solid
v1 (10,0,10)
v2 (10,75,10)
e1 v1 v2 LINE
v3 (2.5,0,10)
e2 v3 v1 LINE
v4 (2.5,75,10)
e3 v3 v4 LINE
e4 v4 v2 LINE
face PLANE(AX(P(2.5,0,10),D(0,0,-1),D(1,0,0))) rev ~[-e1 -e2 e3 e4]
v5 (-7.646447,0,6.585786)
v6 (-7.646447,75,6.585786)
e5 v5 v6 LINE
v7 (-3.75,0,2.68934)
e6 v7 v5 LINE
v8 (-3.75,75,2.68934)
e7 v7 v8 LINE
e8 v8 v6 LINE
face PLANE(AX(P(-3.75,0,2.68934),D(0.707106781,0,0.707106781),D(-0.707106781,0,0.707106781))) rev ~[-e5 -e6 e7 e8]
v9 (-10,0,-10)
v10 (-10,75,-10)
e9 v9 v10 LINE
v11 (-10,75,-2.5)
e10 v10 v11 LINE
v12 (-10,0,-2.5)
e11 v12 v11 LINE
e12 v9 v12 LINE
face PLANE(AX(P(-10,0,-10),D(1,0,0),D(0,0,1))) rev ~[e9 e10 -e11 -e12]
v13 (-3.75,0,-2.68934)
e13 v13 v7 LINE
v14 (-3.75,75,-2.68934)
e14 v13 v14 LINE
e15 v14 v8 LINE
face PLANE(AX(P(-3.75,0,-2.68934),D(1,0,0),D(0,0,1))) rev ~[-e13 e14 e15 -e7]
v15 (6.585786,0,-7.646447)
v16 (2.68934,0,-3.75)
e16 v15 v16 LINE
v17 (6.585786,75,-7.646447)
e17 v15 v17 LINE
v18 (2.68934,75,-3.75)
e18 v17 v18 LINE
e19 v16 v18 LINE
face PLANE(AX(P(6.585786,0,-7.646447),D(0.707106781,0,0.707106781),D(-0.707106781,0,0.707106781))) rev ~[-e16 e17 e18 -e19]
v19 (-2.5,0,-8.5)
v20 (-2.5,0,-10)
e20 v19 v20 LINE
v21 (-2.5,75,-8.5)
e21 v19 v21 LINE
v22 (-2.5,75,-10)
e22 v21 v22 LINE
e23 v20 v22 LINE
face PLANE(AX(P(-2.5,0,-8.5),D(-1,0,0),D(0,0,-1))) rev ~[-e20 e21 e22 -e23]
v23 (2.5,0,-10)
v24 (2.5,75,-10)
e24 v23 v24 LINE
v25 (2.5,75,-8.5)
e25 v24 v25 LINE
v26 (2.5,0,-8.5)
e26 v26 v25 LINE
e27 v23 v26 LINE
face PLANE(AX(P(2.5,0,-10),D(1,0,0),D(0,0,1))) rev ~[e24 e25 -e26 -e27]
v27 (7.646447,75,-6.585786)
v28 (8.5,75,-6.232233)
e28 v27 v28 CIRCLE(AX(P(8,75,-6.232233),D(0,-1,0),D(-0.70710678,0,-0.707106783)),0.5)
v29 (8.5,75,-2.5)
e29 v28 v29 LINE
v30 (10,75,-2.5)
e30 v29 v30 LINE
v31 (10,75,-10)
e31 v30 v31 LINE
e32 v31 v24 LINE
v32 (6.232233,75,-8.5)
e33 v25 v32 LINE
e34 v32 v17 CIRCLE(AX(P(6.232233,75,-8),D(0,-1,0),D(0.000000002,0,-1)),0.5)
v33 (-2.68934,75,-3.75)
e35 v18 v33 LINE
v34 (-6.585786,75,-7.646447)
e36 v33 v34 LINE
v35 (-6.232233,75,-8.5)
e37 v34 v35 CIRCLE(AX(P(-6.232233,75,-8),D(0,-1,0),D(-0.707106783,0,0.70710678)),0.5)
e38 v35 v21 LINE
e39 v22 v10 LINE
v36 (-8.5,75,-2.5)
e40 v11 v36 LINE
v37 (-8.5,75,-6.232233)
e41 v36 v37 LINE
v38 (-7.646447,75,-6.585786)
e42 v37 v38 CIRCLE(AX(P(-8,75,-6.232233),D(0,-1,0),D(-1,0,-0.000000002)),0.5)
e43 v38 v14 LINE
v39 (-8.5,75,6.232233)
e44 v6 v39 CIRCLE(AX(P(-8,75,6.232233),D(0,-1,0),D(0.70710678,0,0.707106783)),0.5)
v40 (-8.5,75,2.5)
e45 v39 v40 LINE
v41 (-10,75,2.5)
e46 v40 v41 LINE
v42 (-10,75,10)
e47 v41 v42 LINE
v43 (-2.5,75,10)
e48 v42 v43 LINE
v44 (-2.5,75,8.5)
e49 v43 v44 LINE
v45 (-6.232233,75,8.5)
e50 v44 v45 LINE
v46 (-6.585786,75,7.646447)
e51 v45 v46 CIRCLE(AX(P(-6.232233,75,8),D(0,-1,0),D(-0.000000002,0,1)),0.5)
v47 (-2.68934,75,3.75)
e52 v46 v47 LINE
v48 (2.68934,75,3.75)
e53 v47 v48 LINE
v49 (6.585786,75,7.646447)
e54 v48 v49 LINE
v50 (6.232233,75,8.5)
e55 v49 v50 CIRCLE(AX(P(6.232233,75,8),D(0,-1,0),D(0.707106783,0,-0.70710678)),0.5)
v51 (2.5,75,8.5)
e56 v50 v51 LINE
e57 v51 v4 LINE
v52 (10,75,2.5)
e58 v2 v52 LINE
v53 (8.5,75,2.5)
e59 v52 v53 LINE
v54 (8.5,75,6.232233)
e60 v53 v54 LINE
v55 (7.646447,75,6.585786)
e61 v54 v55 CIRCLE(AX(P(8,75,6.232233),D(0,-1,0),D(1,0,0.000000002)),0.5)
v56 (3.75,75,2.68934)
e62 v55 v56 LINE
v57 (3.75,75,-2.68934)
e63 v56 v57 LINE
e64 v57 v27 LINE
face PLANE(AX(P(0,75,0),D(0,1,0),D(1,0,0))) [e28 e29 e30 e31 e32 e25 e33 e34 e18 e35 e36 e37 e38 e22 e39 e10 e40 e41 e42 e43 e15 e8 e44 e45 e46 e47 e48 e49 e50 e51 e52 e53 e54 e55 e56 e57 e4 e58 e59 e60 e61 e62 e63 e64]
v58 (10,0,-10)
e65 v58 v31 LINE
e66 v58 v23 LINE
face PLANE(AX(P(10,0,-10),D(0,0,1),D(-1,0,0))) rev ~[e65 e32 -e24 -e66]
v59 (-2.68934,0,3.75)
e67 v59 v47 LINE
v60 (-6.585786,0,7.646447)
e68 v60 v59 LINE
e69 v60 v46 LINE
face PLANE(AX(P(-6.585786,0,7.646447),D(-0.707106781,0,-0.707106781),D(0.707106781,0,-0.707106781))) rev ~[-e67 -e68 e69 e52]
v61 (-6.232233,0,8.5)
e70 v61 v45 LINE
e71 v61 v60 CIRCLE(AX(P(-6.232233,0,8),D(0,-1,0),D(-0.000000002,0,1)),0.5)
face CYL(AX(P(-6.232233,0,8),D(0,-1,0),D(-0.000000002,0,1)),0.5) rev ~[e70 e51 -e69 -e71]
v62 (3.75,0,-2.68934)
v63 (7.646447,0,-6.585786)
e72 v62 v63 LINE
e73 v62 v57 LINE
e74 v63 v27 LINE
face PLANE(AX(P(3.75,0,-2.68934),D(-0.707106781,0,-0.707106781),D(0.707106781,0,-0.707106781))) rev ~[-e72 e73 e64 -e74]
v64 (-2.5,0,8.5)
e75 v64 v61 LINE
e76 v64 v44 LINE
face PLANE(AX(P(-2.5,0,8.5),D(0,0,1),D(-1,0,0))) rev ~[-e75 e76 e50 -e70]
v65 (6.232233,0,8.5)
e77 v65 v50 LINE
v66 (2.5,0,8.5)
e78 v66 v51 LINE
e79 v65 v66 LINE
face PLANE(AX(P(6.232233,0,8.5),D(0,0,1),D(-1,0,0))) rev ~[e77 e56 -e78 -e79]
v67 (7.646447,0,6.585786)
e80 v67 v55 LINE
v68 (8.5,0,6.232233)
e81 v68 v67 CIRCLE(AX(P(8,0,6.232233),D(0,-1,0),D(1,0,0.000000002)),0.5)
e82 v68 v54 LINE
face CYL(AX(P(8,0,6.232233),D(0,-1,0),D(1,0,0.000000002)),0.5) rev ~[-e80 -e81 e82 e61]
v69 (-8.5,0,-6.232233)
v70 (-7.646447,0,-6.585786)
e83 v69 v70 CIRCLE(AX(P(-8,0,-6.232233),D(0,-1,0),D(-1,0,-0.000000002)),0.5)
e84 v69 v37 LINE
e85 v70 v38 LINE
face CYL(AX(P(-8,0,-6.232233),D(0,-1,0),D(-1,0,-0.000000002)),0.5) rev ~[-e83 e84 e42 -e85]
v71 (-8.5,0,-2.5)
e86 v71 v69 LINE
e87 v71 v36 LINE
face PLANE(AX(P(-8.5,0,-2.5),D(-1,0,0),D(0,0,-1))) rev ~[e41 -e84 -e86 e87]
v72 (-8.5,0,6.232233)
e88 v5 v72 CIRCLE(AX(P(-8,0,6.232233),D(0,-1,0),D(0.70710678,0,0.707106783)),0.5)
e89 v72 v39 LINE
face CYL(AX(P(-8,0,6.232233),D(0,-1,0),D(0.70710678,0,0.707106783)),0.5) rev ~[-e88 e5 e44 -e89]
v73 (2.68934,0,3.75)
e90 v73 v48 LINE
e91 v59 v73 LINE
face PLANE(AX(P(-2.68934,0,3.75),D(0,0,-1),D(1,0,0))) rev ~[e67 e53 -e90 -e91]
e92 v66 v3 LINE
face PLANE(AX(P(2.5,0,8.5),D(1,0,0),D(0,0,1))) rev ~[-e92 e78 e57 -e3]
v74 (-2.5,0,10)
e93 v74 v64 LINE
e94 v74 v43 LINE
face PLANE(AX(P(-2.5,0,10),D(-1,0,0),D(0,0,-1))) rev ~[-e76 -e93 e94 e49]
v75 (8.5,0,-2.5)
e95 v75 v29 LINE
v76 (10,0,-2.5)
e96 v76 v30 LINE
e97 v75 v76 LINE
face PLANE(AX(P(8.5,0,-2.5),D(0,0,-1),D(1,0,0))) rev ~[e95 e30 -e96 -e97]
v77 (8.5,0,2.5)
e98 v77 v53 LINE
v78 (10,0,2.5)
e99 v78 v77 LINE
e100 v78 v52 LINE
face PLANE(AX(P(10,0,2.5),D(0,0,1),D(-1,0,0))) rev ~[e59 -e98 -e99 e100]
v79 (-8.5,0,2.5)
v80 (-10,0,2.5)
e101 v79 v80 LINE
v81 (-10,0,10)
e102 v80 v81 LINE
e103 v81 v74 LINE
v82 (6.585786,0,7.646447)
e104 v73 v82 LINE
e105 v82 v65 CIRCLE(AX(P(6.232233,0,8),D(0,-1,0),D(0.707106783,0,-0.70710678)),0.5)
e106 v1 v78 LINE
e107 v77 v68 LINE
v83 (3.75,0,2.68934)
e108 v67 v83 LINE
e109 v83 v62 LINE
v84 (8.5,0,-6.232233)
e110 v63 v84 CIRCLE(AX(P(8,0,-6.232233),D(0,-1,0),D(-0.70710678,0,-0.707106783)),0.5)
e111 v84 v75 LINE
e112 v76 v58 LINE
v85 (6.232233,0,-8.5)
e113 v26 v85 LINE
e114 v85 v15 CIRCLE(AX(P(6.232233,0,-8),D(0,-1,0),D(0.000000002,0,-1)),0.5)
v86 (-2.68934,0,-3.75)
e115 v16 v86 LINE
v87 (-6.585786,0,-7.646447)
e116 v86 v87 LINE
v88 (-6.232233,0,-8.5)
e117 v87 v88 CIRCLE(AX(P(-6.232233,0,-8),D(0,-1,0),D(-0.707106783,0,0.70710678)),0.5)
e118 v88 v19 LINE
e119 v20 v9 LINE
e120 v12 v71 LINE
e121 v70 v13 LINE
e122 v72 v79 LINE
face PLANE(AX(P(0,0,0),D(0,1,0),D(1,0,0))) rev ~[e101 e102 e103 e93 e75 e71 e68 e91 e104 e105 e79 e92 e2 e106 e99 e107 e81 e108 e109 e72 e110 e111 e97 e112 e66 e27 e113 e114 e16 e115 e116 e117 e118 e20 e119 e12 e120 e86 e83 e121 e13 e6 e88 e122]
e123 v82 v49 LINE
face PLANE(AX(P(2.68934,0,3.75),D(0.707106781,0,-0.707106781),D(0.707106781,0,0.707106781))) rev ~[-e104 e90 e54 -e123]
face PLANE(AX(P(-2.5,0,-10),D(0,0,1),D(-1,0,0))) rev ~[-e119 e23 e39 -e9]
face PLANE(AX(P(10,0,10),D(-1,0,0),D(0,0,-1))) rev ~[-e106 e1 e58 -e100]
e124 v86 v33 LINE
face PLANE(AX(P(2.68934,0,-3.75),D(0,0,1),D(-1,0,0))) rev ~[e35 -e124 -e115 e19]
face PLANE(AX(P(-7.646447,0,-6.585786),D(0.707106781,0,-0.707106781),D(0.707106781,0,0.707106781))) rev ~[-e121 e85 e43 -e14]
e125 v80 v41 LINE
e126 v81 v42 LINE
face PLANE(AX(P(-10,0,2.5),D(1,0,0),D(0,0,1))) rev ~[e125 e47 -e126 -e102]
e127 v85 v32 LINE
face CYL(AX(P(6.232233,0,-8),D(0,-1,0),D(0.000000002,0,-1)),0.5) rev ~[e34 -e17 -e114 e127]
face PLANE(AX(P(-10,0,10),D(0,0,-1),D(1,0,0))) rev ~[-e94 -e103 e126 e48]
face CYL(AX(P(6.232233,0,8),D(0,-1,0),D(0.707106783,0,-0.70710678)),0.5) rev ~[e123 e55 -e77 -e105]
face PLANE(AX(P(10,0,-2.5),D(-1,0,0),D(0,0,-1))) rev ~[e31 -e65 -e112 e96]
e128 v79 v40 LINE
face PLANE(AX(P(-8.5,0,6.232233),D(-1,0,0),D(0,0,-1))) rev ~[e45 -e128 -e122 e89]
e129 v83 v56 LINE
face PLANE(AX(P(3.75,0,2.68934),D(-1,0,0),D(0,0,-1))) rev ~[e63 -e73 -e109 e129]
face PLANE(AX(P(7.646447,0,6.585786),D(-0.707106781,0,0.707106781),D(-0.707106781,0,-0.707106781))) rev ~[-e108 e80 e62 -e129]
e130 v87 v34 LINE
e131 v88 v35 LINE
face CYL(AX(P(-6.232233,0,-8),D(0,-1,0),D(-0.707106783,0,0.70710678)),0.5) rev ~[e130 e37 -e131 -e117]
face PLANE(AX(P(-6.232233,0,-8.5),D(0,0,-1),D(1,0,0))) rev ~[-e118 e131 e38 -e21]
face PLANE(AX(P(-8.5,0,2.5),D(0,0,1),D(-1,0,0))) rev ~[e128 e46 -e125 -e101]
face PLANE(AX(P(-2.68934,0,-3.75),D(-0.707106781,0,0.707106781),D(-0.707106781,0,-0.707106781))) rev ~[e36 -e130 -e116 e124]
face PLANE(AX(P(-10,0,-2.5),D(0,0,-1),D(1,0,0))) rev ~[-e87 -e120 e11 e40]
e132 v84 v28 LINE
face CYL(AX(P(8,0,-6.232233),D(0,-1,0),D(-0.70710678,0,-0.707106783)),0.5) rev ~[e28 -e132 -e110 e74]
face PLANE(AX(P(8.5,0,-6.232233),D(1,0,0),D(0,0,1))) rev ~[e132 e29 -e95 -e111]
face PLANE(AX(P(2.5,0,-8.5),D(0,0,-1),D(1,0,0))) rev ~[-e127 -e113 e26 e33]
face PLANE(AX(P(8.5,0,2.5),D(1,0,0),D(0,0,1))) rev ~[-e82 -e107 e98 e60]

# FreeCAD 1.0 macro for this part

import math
import FreeCAD as App
import Part
import Sketcher
from FreeCAD import Vector
Q = App.Units.Quantity

doc = App.newDocument("Part")
body = doc.addObject("PartDesign::Body", "Body")

# Sketch on XZ plane
sketch1 = body.newObject("Sketcher::SketchObject", "Sketch")
sketch1.AttachmentSupport = (doc.getObject("XZ_Plane"), [""])
sketch1.MapMode = "FlatFace"
sketch1.addGeometry(Part.LineSegment(Vector(-10, 2.5, 0), Vector(-10, 10, 0)), False)
sketch1.addGeometry(Part.LineSegment(Vector(-10, 10, 0), Vector(-2.5, 10, 0)), False)
sketch1.addGeometry(Part.LineSegment(Vector(-2.5, 10, 0), Vector(-2.5, 8.5, 0)), False)
sketch1.addGeometry(Part.LineSegment(Vector(-2.5, 8.5, 0), Vector(-6.2, 8.5, 0)), False)
sketch1.addGeometry(Part.ArcOfCircle(Part.Circle(Vector(-6.2, 8, 0), Vector(0, 0, 1), 0.5), math.radians(90), math.radians(225)), False)
sketch1.addGeometry(Part.LineSegment(Vector(-6.6, 7.6, 0), Vector(-2.7, 3.8, 0)), False)
sketch1.addGeometry(Part.LineSegment(Vector(-2.7, 3.8, 0), Vector(2.7, 3.8, 0)), False)
sketch1.addGeometry(Part.LineSegment(Vector(2.7, 3.8, 0), Vector(6.6, 7.6, 0)), False)
sketch1.addGeometry(Part.ArcOfCircle(Part.Circle(Vector(6.2, 8, 0), Vector(0, 0, 1), 0.5), math.radians(-45), math.radians(90)), False)
sketch1.addGeometry(Part.LineSegment(Vector(6.2, 8.5, 0), Vector(2.5, 8.5, 0)), False)
sketch1.addGeometry(Part.LineSegment(Vector(2.5, 8.5, 0), Vector(2.5, 10, 0)), False)
sketch1.addGeometry(Part.LineSegment(Vector(2.5, 10, 0), Vector(10, 10, 0)), False)
sketch1.addGeometry(Part.LineSegment(Vector(10, 10, 0), Vector(10, 2.5, 0)), False)
sketch1.addGeometry(Part.LineSegment(Vector(10, 2.5, 0), Vector(8.5, 2.5, 0)), False)
sketch1.addGeometry(Part.LineSegment(Vector(8.5, 2.5, 0), Vector(8.5, 6.2, 0)), False)
sketch1.addGeometry(Part.ArcOfCircle(Part.Circle(Vector(8, 6.2, 0), Vector(0, 0, 1), 0.5), math.radians(0), math.radians(135)), False)
sketch1.addGeometry(Part.LineSegment(Vector(7.6, 6.6, 0), Vector(3.8, 2.7, 0)), False)
sketch1.addGeometry(Part.LineSegment(Vector(3.8, 2.7, 0), Vector(3.8, -2.7, 0)), False)
sketch1.addGeometry(Part.LineSegment(Vector(3.8, -2.7, 0), Vector(7.6, -6.6, 0)), False)
sketch1.addGeometry(Part.ArcOfCircle(Part.Circle(Vector(8, -6.2, 0), Vector(0, 0, 1), 0.5), math.radians(-135), math.radians(0)), False)
sketch1.addGeometry(Part.LineSegment(Vector(8.5, -6.2, 0), Vector(8.5, -2.5, 0)), False)
sketch1.addGeometry(Part.LineSegment(Vector(8.5, -2.5, 0), Vector(10, -2.5, 0)), False)
sketch1.addGeometry(Part.LineSegment(Vector(10, -2.5, 0), Vector(10, -10, 0)), False)
sketch1.addGeometry(Part.LineSegment(Vector(10, -10, 0), Vector(2.5, -10, 0)), False)
sketch1.addGeometry(Part.LineSegment(Vector(2.5, -10, 0), Vector(2.5, -8.5, 0)), False)
sketch1.addGeometry(Part.LineSegment(Vector(2.5, -8.5, 0), Vector(6.2, -8.5, 0)), False)
sketch1.addGeometry(Part.ArcOfCircle(Part.Circle(Vector(6.2, -8, 0), Vector(0, 0, 1), 0.5), math.radians(-90), math.radians(45)), False)
sketch1.addGeometry(Part.LineSegment(Vector(6.6, -7.6, 0), Vector(2.7, -3.8, 0)), False)
sketch1.addGeometry(Part.LineSegment(Vector(2.7, -3.8, 0), Vector(-2.7, -3.8, 0)), False)
sketch1.addGeometry(Part.LineSegment(Vector(-2.7, -3.8, 0), Vector(-6.6, -7.6, 0)), False)
sketch1.addGeometry(Part.ArcOfCircle(Part.Circle(Vector(-6.2, -8, 0), Vector(0, 0, 1), 0.5), math.radians(135), math.radians(270)), False)
sketch1.addGeometry(Part.LineSegment(Vector(-6.2, -8.5, 0), Vector(-2.5, -8.5, 0)), False)
sketch1.addGeometry(Part.LineSegment(Vector(-2.5, -8.5, 0), Vector(-2.5, -10, 0)), False)
sketch1.addGeometry(Part.LineSegment(Vector(-2.5, -10, 0), Vector(-10, -10, 0)), False)
sketch1.addGeometry(Part.LineSegment(Vector(-10, -10, 0), Vector(-10, -2.5, 0)), False)
sketch1.addGeometry(Part.LineSegment(Vector(-10, -2.5, 0), Vector(-8.5, -2.5, 0)), False)
sketch1.addGeometry(Part.LineSegment(Vector(-8.5, -2.5, 0), Vector(-8.5, -6.2, 0)), False)
sketch1.addGeometry(Part.ArcOfCircle(Part.Circle(Vector(-8, -6.2, 0), Vector(0, 0, 1), 0.5), math.radians(-180), math.radians(-45)), False)
sketch1.addGeometry(Part.LineSegment(Vector(-7.6, -6.6, 0), Vector(-3.8, -2.7, 0)), False)
sketch1.addGeometry(Part.LineSegment(Vector(-3.8, -2.7, 0), Vector(-3.8, 2.7, 0)), False)
sketch1.addGeometry(Part.LineSegment(Vector(-3.8, 2.7, 0), Vector(-7.6, 6.6, 0)), False)
sketch1.addGeometry(Part.ArcOfCircle(Part.Circle(Vector(-8, 6.2, 0), Vector(0, 0, 1), 0.5), math.radians(45), math.radians(180)), False)
sketch1.addGeometry(Part.LineSegment(Vector(-8.5, 6.2, 0), Vector(-8.5, 2.5, 0)), False)
sketch1.addGeometry(Part.LineSegment(Vector(-8.5, 2.5, 0), Vector(-10, 2.5, 0)), False)
sketch1.addConstraint(Sketcher.Constraint("Coincident", 0, 2, 1, 1))
sketch1.addConstraint(Sketcher.Constraint("Coincident", 1, 2, 2, 1))
sketch1.addConstraint(Sketcher.Constraint("Coincident", 2, 2, 3, 1))
sketch1.addConstraint(Sketcher.Constraint("Tangent", 3, 2, 4, 1))
sketch1.addConstraint(Sketcher.Constraint("Tangent", 4, 2, 5, 1))
sketch1.addConstraint(Sketcher.Constraint("Coincident", 5, 2, 6, 1))
sketch1.addConstraint(Sketcher.Constraint("Coincident", 6, 2, 7, 1))
sketch1.addConstraint(Sketcher.Constraint("Tangent", 7, 2, 8, 1))
sketch1.addConstraint(Sketcher.Constraint("Tangent", 8, 2, 9, 1))
sketch1.addConstraint(Sketcher.Constraint("Coincident", 9, 2, 10, 1))
sketch1.addConstraint(Sketcher.Constraint("Coincident", 10, 2, 11, 1))
sketch1.addConstraint(Sketcher.Constraint("Coincident", 11, 2, 12, 1))
sketch1.addConstraint(Sketcher.Constraint("Coincident", 12, 2, 13, 1))
sketch1.addConstraint(Sketcher.Constraint("Coincident", 13, 2, 14, 1))
sketch1.addConstraint(Sketcher.Constraint("Tangent", 14, 2, 15, 1))
sketch1.addConstraint(Sketcher.Constraint("Tangent", 15, 2, 16, 1))
sketch1.addConstraint(Sketcher.Constraint("Coincident", 16, 2, 17, 1))
sketch1.addConstraint(Sketcher.Constraint("Coincident", 17, 2, 18, 1))
sketch1.addConstraint(Sketcher.Constraint("Tangent", 18, 2, 19, 1))
sketch1.addConstraint(Sketcher.Constraint("Tangent", 19, 2, 20, 1))
sketch1.addConstraint(Sketcher.Constraint("Coincident", 20, 2, 21, 1))
sketch1.addConstraint(Sketcher.Constraint("Coincident", 21, 2, 22, 1))
sketch1.addConstraint(Sketcher.Constraint("Coincident", 22, 2, 23, 1))
sketch1.addConstraint(Sketcher.Constraint("Coincident", 23, 2, 24, 1))
sketch1.addConstraint(Sketcher.Constraint("Coincident", 24, 2, 25, 1))
sketch1.addConstraint(Sketcher.Constraint("Tangent", 25, 2, 26, 1))
sketch1.addConstraint(Sketcher.Constraint("Tangent", 26, 2, 27, 1))
sketch1.addConstraint(Sketcher.Constraint("Coincident", 27, 2, 28, 1))
sketch1.addConstraint(Sketcher.Constraint("Coincident", 28, 2, 29, 1))
sketch1.addConstraint(Sketcher.Constraint("Tangent", 29, 2, 30, 1))
sketch1.addConstraint(Sketcher.Constraint("Tangent", 30, 2, 31, 1))
sketch1.addConstraint(Sketcher.Constraint("Coincident", 31, 2, 32, 1))
sketch1.addConstraint(Sketcher.Constraint("Coincident", 32, 2, 33, 1))
sketch1.addConstraint(Sketcher.Constraint("Coincident", 33, 2, 34, 1))
sketch1.addConstraint(Sketcher.Constraint("Coincident", 34, 2, 35, 1))
sketch1.addConstraint(Sketcher.Constraint("Coincident", 35, 2, 36, 1))
sketch1.addConstraint(Sketcher.Constraint("Tangent", 36, 2, 37, 1))
sketch1.addConstraint(Sketcher.Constraint("Tangent", 37, 2, 38, 1))
sketch1.addConstraint(Sketcher.Constraint("Coincident", 38, 2, 39, 1))
sketch1.addConstraint(Sketcher.Constraint("Coincident", 39, 2, 40, 1))
sketch1.addConstraint(Sketcher.Constraint("Tangent", 40, 2, 41, 1))
sketch1.addConstraint(Sketcher.Constraint("Tangent", 41, 2, 42, 1))
sketch1.addConstraint(Sketcher.Constraint("Coincident", 42, 2, 43, 1))
sketch1.addConstraint(Sketcher.Constraint("Coincident", 43, 2, 0, 1))
sketch1.addConstraint(Sketcher.Constraint("Vertical", 0))
sketch1.addConstraint(Sketcher.Constraint("Horizontal", 1))
sketch1.addConstraint(Sketcher.Constraint("Vertical", 2))
sketch1.addConstraint(Sketcher.Constraint("Horizontal", 3))
sketch1.addConstraint(Sketcher.Constraint("Horizontal", 6))
sketch1.addConstraint(Sketcher.Constraint("Horizontal", 9))
sketch1.addConstraint(Sketcher.Constraint("Vertical", 10))
sketch1.addConstraint(Sketcher.Constraint("Horizontal", 11))
sketch1.addConstraint(Sketcher.Constraint("Vertical", 12))
sketch1.addConstraint(Sketcher.Constraint("Horizontal", 13))
sketch1.addConstraint(Sketcher.Constraint("Vertical", 14))
sketch1.addConstraint(Sketcher.Constraint("Vertical", 17))
sketch1.addConstraint(Sketcher.Constraint("Vertical", 20))
sketch1.addConstraint(Sketcher.Constraint("Horizontal", 21))
sketch1.addConstraint(Sketcher.Constraint("Vertical", 22))
sketch1.addConstraint(Sketcher.Constraint("Horizontal", 23))
sketch1.addConstraint(Sketcher.Constraint("Vertical", 24))
sketch1.addConstraint(Sketcher.Constraint("Horizontal", 25))
sketch1.addConstraint(Sketcher.Constraint("Horizontal", 28))
sketch1.addConstraint(Sketcher.Constraint("Horizontal", 31))
sketch1.addConstraint(Sketcher.Constraint("Vertical", 32))
sketch1.addConstraint(Sketcher.Constraint("Horizontal", 33))
sketch1.addConstraint(Sketcher.Constraint("Vertical", 34))
sketch1.addConstraint(Sketcher.Constraint("Horizontal", 35))
sketch1.addConstraint(Sketcher.Constraint("Vertical", 36))
sketch1.addConstraint(Sketcher.Constraint("Vertical", 39))
sketch1.addConstraint(Sketcher.Constraint("Vertical", 42))
sketch1.addConstraint(Sketcher.Constraint("Horizontal", 43))
sketch1.addConstraint(Sketcher.Constraint("Equal", 4, 8))
sketch1.addConstraint(Sketcher.Constraint("Equal", 8, 15))
sketch1.addConstraint(Sketcher.Constraint("Equal", 15, 19))
sketch1.addConstraint(Sketcher.Constraint("Equal", 19, 26))
sketch1.addConstraint(Sketcher.Constraint("Equal", 26, 30))
sketch1.addConstraint(Sketcher.Constraint("Equal", 30, 37))
sketch1.addConstraint(Sketcher.Constraint("Equal", 37, 41))
sketch1.addConstraint(Sketcher.Constraint("Symmetric", 4, 3, 26, 3, -1, 1))
sketch1.addConstraint(Sketcher.Constraint("Symmetric", 8, 3, 30, 3, -1, 1))
sketch1.addConstraint(Sketcher.Constraint("Symmetric", 15, 3, 37, 3, -1, 1))
sketch1.addConstraint(Sketcher.Constraint("Symmetric", 19, 3, 41, 3, -1, 1))
sketch1.addConstraint(Sketcher.Constraint("Symmetric", 0, 2, 22, 2, -1, 1))
sketch1.addConstraint(Sketcher.Constraint("Symmetric", 5, 2, 27, 2, -1, 1))
sketch1.addConstraint(Sketcher.Constraint("Symmetric", 10, 2, 32, 2, -1, 1))
sketch1.addConstraint(Sketcher.Constraint("Symmetric", 12, 2, 34, 2, -1, 1))
sketch1.addConstraint(Sketcher.Constraint("Symmetric", 16, 2, 38, 2, -1, 1))
sketch1.addConstraint(Sketcher.Constraint("Symmetric", 4, 3, 8, 3, -2))
sketch1.addConstraint(Sketcher.Constraint("Symmetric", 19, 3, 37, 3, -2))
sketch1.addConstraint(Sketcher.Constraint("Symmetric", 1, 2, 10, 2, -2))
sketch1.addConstraint(Sketcher.Constraint("Symmetric", 21, 2, 34, 2, -2))
sketch1.addConstraint(Sketcher.Constraint("Perpendicular", 5, 7))
sketch1.addConstraint(Sketcher.Constraint("Parallel", 7, 16))
sketch1.addConstraint(Sketcher.Constraint("Perpendicular", 16, 18))
sketch1.addConstraint(Sketcher.Constraint("Perpendicular", 27, 29))
sketch1.addConstraint(Sketcher.Constraint("Perpendicular", 38, 40))
sketch1.addConstraint(Sketcher.Constraint("Horizontal", 4, 2, 7, 2))
sketch1.addConstraint(Sketcher.Constraint("Horizontal", 13, 2, 42, 2))
sketch1.addConstraint(Sketcher.Constraint("Vertical", 10, 2, 23, 2))
sketch1.addConstraint(Sketcher.Constraint("Equal", 33, 0))
sketch1.addConstraint(Sketcher.Constraint("Equal", 43, 2))
sketch1.addConstraint(Sketcher.Constraint("Equal", 31, 14))
sketch1.addConstraint(Sketcher.Constraint("Equal", 28, 17))
sketch1.addConstraint(Sketcher.Constraint("Equal", 7, 16))
sketch1.addConstraint(Sketcher.Constraint("Radius", 4, Q("0.5 mm")))
sketch1.addConstraint(Sketcher.Constraint("DistanceX", 1, 1, 1, 2, Q("7.5 mm")))
sketch1.addConstraint(Sketcher.Constraint("DistanceX", 13, 2, 13, 1, Q("1.5 mm")))
sketch1.addConstraint(Sketcher.Constraint("DistanceY", -1, 1, 4, 3, Q("8 mm")))
sketch1.addConstraint(Sketcher.Constraint("DistanceY", -1, 1, 5, 2, Q("3.75 mm")))
sketch1.addConstraint(Sketcher.Constraint("DistanceX", 6, 1, 6, 2, Q("5.37868 mm")))
pad1 = body.newObject("PartDesign::Pad", "Pad")
pad1.Profile = sketch1
pad1.Length = 75
pad1.Reversed = True

doc.recompute()
